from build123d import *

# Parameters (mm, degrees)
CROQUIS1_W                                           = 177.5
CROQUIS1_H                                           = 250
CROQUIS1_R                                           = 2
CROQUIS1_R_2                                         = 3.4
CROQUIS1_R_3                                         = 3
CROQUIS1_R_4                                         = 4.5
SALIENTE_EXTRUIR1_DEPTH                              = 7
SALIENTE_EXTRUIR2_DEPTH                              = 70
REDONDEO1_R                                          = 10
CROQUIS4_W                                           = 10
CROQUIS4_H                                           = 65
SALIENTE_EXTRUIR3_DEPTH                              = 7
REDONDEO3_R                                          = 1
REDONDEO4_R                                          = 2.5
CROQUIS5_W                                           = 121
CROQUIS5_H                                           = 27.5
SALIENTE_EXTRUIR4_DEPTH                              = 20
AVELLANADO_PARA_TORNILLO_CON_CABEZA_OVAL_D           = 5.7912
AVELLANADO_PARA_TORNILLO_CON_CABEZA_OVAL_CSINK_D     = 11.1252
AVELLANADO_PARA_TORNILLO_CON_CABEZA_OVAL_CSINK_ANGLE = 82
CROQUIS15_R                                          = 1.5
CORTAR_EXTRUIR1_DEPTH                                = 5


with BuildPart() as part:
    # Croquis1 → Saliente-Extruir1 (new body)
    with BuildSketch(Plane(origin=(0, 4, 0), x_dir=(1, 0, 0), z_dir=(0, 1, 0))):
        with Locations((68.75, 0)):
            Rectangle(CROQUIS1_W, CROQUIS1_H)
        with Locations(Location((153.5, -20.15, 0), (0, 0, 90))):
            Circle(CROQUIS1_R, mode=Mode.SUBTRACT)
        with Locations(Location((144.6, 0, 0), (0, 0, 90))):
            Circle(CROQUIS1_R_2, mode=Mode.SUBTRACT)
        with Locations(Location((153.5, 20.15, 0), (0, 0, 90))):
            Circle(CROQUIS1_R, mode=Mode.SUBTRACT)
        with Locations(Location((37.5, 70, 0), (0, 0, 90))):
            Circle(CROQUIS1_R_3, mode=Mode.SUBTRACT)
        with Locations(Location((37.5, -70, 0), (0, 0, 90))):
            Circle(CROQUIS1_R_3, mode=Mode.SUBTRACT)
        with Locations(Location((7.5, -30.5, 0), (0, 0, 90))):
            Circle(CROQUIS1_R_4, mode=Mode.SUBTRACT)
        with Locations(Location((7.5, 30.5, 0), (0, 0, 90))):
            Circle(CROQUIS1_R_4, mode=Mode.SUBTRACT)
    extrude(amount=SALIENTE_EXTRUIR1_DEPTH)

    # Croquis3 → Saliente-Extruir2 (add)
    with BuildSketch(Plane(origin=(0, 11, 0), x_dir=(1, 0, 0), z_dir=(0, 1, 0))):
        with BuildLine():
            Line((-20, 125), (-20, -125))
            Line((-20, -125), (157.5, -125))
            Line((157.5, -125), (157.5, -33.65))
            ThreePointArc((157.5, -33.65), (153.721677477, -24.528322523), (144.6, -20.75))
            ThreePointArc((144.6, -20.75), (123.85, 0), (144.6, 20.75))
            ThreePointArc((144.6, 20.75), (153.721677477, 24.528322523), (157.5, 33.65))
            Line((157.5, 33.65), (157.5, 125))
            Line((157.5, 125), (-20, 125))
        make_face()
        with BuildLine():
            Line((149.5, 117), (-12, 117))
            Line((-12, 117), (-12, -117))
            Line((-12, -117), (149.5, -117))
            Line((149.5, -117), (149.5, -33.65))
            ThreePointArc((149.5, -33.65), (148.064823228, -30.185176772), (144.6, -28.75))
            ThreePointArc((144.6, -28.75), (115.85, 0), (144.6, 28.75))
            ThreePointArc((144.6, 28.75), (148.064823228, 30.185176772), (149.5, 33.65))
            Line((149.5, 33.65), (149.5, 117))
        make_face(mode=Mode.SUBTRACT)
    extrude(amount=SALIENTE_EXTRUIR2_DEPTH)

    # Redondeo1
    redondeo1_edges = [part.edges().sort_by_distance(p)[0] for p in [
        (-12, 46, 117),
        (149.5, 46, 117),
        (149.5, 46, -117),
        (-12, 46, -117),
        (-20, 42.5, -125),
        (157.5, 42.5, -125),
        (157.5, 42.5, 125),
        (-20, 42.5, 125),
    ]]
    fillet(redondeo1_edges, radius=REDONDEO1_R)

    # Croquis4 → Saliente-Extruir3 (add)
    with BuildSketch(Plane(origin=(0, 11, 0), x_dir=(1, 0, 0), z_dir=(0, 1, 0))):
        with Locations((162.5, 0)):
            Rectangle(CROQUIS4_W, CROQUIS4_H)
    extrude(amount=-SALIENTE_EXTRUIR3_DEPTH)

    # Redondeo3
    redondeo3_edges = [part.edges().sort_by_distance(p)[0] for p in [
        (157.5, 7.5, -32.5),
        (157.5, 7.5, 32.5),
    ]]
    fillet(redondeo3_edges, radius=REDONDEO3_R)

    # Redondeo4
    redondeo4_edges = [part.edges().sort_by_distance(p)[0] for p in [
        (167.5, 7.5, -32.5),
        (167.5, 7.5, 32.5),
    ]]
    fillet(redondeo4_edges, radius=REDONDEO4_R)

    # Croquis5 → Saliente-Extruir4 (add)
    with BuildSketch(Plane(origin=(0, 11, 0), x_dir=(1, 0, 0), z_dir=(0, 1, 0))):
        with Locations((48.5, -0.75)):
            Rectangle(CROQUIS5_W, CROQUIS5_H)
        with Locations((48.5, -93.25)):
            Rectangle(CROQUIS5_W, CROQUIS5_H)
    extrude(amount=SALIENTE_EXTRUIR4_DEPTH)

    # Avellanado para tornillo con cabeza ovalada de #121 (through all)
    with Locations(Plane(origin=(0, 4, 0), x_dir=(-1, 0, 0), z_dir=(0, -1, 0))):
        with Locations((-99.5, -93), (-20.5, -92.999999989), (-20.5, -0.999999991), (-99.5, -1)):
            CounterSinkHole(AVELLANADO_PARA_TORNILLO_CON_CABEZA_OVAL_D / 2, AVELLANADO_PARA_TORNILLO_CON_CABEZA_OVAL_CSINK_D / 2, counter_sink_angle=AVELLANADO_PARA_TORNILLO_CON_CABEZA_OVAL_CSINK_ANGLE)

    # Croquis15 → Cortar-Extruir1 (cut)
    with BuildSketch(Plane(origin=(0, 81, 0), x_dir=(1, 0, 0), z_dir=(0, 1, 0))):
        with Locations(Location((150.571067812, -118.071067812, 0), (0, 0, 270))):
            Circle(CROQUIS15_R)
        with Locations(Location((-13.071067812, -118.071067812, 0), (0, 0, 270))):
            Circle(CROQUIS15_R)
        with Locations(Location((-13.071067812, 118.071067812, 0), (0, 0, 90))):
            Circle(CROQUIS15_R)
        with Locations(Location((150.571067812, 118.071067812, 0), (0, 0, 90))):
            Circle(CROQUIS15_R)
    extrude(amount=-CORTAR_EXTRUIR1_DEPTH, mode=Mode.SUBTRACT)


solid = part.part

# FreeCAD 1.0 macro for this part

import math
import FreeCAD as App
import Part
import Sketcher
Q = App.Units.Quantity


def edges_at(feature, points):
    """Names of the edges that pass closest to the given points."""
    edges = feature.Shape.Edges
    near = lambda p: min(range(len(edges)), key=lambda i: edges[i].distToShape(Part.Vertex(*p))[0])
    return sorted({f"Edge{near(p) + 1}" for p in points})


def add_polygon(sketch, points):
    """Adds a closed chain of lines whose ends are joined by coincident constraints."""
    first, n = sketch.GeometryCount, len(points)
    for a, b in zip(points, points[1:] + points[:1]):
        sketch.addGeometry(Part.LineSegment(App.Vector(*a, 0), App.Vector(*b, 0)), False)
    for i in range(n):
        sketch.addConstraint(Sketcher.Constraint("Coincident", first + i, 2, first + (i + 1) % n, 1))

doc = App.newDocument("Part")
params = doc.addObject("Spreadsheet::Sheet", "Params")
for row, (alias, value) in enumerate([
    ("sketch1_diameter", "6 mm"),
    ("sketch1_diameter2", "9 mm"),
    ("sketch1_diameter3", "4 mm"),
    ("sketch1_diameter4", "6.8 mm"),
    ("sketch1_height", "250 mm"),
    ("pad1_length", "7 mm"),
    ("sketch2_radius", "12.9 mm"),
    ("sketch2_radius2", "4.9 mm"),
    ("sketch2_height", "250 mm"),
    ("sketch2_height2", "234 mm"),
    ("sketch2_radius3", "20.75 mm"),
    ("pad2_length", "70 mm"),
    ("fillet_radius", "10 mm"),
    ("sketch3_width", "10 mm"),
    ("sketch3_height", "65 mm"),
    ("pad3_length", "7 mm"),
    ("fillet2_radius", "1 mm"),
    ("fillet3_radius", "2.5 mm"),
    ("sketch4_width", "121 mm"),
    ("sketch4_height", "27.5 mm"),
    ("pad4_length", "20 mm"),
    ("hole_diameter", "5.7912 mm"),
    ("hole_csink_diameter", "11.1252 mm"),
    ("sketch6_diameter", "3 mm"),
    ("pocket1_length", "5 mm"),
], start=1):
    params.set(f"A{row}", alias)
    params.set(f"B{row}", "=" + value)
    params.setAlias(f"B{row}", alias)

body = doc.addObject("PartDesign::Body", "Body")

# Sketch on XZ plane
sketch1 = body.newObject("Sketcher::SketchObject", "Sketch")
sketch1.AttachmentSupport = (doc.getObject("XZ_Plane"), [""])
sketch1.MapMode = "FlatFace"
sketch1.AttachmentOffset = App.Placement(App.Vector(0, 0, -4), App.Rotation())
add_polygon(sketch1, [(-20, -125), (-20, 125), (157.5, 125), (157.5, -125)])  # lines 0-3
sketch1.addGeometry(Part.Circle(App.Vector(37.5, 70, 0), App.Vector(0, 0, 1), 3), False)  # 4
sketch1.addGeometry(Part.Circle(App.Vector(7.5, 30.5, 0), App.Vector(0, 0, 1), 4.5), False)  # 5
sketch1.addGeometry(Part.Circle(App.Vector(153.5, 20.15, 0), App.Vector(0, 0, 1), 2), False)  # 6
sketch1.addGeometry(Part.Circle(App.Vector(7.5, -30.5, 0), App.Vector(0, 0, 1), 4.5), False)  # 7
sketch1.addGeometry(Part.Circle(App.Vector(37.5, -70, 0), App.Vector(0, 0, 1), 3), False)  # 8
sketch1.addGeometry(Part.Circle(App.Vector(144.6, 0, 0), App.Vector(0, 0, 1), 3.4), False)  # 9
sketch1.addGeometry(Part.Circle(App.Vector(153.5, -20.15, 0), App.Vector(0, 0, 1), 2), False)  # 10
sketch1.addConstraint([
    Sketcher.Constraint("Vertical", 0),
    Sketcher.Constraint("Horizontal", 1),
    Sketcher.Constraint("Vertical", 2),
    Sketcher.Constraint("Horizontal", 3),
    Sketcher.Constraint("Equal", 5, 7),
    Sketcher.Constraint("Equal", 4, 8),
    Sketcher.Constraint("Equal", 6, 10),
    Sketcher.Constraint("Symmetric", 5, 3, 7, 3, -1),
    Sketcher.Constraint("Symmetric", 4, 3, 8, 3, -1),
    Sketcher.Constraint("Symmetric", 6, 3, 10, 3, -1),
    Sketcher.Constraint("PointOnObject", 9, 3, -1),
    Sketcher.Constraint("Diameter", 4, Q("6 mm")),
    Sketcher.Constraint("Diameter", 5, Q("9 mm")),
    Sketcher.Constraint("Diameter", 6, Q("4 mm")),
    Sketcher.Constraint("Diameter", 9, Q("6.8 mm")),
    Sketcher.Constraint("DistanceY", 0, 1, 0, 2, Q("250 mm")),
    Sketcher.Constraint("DistanceX", 1, 1, 1, 2, Q("177.5 mm")),
    Sketcher.Constraint("DistanceY", -1, 1, 4, 3, Q("70 mm")),
    Sketcher.Constraint("DistanceX", 0, 2, -1, 1, Q("20 mm")),
    Sketcher.Constraint("DistanceY", -1, 1, 0, 2, Q("125 mm")),
    Sketcher.Constraint("DistanceX", 5, 3, 4, 3, Q("30 mm")),
    Sketcher.Constraint("DistanceX", 4, 3, 6, 3, Q("116 mm")),
    Sketcher.Constraint("DistanceY", 7, 3, 5, 3, Q("61 mm")),
    Sketcher.Constraint("DistanceX", 6, 3, 1, 2, Q("4 mm")),
    Sketcher.Constraint("DistanceX", -1, 1, 9, 3, Q("144.6 mm")),
    Sketcher.Constraint("DistanceY", 10, 3, 6, 3, Q("40.3 mm")),
])
sketch1.setExpression("Constraints[15]", "Params.sketch1_diameter")
sketch1.setExpression("Constraints[16]", "Params.sketch1_diameter2")
sketch1.setExpression("Constraints[17]", "Params.sketch1_diameter3")
sketch1.setExpression("Constraints[18]", "Params.sketch1_diameter4")
sketch1.setExpression("Constraints[19]", "Params.sketch1_height")
pad1 = body.newObject("PartDesign::Pad", "Pad")
pad1.Profile = sketch1
pad1.setExpression("Length", "Params.pad1_length")
pad1.Reversed = True

# Sketch on XZ plane
sketch2 = body.newObject("Sketcher::SketchObject", "Sketch001")
sketch2.AttachmentSupport = (doc.getObject("XZ_Plane"), [""])
sketch2.MapMode = "FlatFace"
sketch2.AttachmentOffset = App.Placement(App.Vector(0, 0, -11), App.Rotation())
sketch2.addGeometry([
    Part.LineSegment(App.Vector(-20, -125, 0), App.Vector(-20, 125, 0)),  # 0
    Part.LineSegment(App.Vector(-20, 125, 0), App.Vector(157.5, 125, 0)),  # 1
    Part.LineSegment(App.Vector(157.5, 125, 0), App.Vector(157.5, 33.65, 0)),  # 2
    Part.ArcOfCircle(Part.Circle(App.Vector(144.6, 33.65, 0), App.Vector(0, 0, 1), 12.9), math.radians(-90), math.radians(0)),  # 3
    Part.ArcOfCircle(Part.Circle(App.Vector(144.6, 0, 0), App.Vector(0, 0, 1), 20.75), math.radians(90), math.radians(270)),  # 4
    Part.ArcOfCircle(Part.Circle(App.Vector(144.6, -33.65, 0), App.Vector(0, 0, 1), 12.9), math.radians(0), math.radians(90)),  # 5
    Part.LineSegment(App.Vector(157.5, -33.65, 0), App.Vector(157.5, -125, 0)),  # 6
    Part.LineSegment(App.Vector(157.5, -125, 0), App.Vector(-20, -125, 0)),  # 7
    Part.LineSegment(App.Vector(-12, -117, 0), App.Vector(149.5, -117, 0)),  # 8
    Part.LineSegment(App.Vector(149.5, -117, 0), App.Vector(149.5, -33.65, 0)),  # 9
    Part.ArcOfCircle(Part.Circle(App.Vector(144.6, -33.65, 0), App.Vector(0, 0, 1), 4.9), math.radians(0), math.radians(90)),  # 10
    Part.ArcOfCircle(Part.Circle(App.Vector(144.6, 0, 0), App.Vector(0, 0, 1), 28.75), math.radians(90), math.radians(270)),  # 11
    Part.ArcOfCircle(Part.Circle(App.Vector(144.6, 33.65, 0), App.Vector(0, 0, 1), 4.9), math.radians(-90), math.radians(0)),  # 12
    Part.LineSegment(App.Vector(149.5, 33.65, 0), App.Vector(149.5, 117, 0)),  # 13
    Part.LineSegment(App.Vector(149.5, 117, 0), App.Vector(-12, 117, 0)),  # 14
    Part.LineSegment(App.Vector(-12, 117, 0), App.Vector(-12, -117, 0)),  # 15
], False)
sketch2.addConstraint([
    Sketcher.Constraint("Coincident", 0, 2, 1, 1),
    Sketcher.Constraint("Coincident", 1, 2, 2, 1),
    Sketcher.Constraint("Tangent", 2, 2, 3, 2),
    Sketcher.Constraint("Tangent", 3, 1, 4, 1),
    Sketcher.Constraint("Tangent", 4, 2, 5, 2),
    Sketcher.Constraint("Tangent", 5, 1, 6, 1),
    Sketcher.Constraint("Coincident", 6, 2, 7, 1),
    Sketcher.Constraint("Coincident", 7, 2, 0, 1),
    Sketcher.Constraint("Coincident", 8, 2, 9, 1),
    Sketcher.Constraint("Tangent", 9, 2, 10, 1),
    Sketcher.Constraint("Tangent", 10, 2, 11, 2),
    Sketcher.Constraint("Tangent", 11, 1, 12, 1),
    Sketcher.Constraint("Tangent", 12, 2, 13, 1),
    Sketcher.Constraint("Coincident", 13, 2, 14, 1),
    Sketcher.Constraint("Coincident", 14, 2, 15, 1),
    Sketcher.Constraint("Coincident", 15, 2, 8, 1),
    Sketcher.Constraint("Vertical", 0),
    Sketcher.Constraint("Horizontal", 1),
    Sketcher.Constraint("Vertical", 2),
    Sketcher.Constraint("Vertical", 6),
    Sketcher.Constraint("Horizontal", 7),
    Sketcher.Constraint("Horizontal", 8),
    Sketcher.Constraint("Vertical", 9),
    Sketcher.Constraint("Vertical", 13),
    Sketcher.Constraint("Horizontal", 14),
    Sketcher.Constraint("Vertical", 15),
    Sketcher.Constraint("Coincident", 10, 3, 5, 3),
    Sketcher.Constraint("Coincident", 11, 3, 4, 3),
    Sketcher.Constraint("Coincident", 12, 3, 3, 3),
    Sketcher.Constraint("Equal", 3, 5),
    Sketcher.Constraint("Symmetric", 3, 3, 5, 3, -1),
    Sketcher.Constraint("Vertical", 3, 3, 4, 3),
    Sketcher.Constraint("Equal", 2, 6),
    Sketcher.Constraint("Equal", 9, 13),
    Sketcher.Constraint("Radius", 3, Q("12.9 mm")),
    Sketcher.Constraint("Radius", 10, Q("4.9 mm")),
    Sketcher.Constraint("DistanceY", 0, 1, 0, 2, Q("250 mm")),
    Sketcher.Constraint("DistanceY", 15, 2, 15, 1, Q("234 mm")),
    Sketcher.Constraint("Radius", 4, Q("20.75 mm")),
    Sketcher.Constraint("DistanceX", 1, 1, 1, 2, Q("177.5 mm")),
    Sketcher.Constraint("DistanceX", 8, 1, 8, 2, Q("161.5 mm")),
    Sketcher.Constraint("DistanceX", 0, 2, -1, 1, Q("20 mm")),
])
sketch2.setExpression("Constraints[34]", "Params.sketch2_radius")
sketch2.setExpression("Constraints[35]", "Params.sketch2_radius2")
sketch2.setExpression("Constraints[36]", "Params.sketch2_height")
sketch2.setExpression("Constraints[37]", "Params.sketch2_height2")
sketch2.setExpression("Constraints[38]", "Params.sketch2_radius3")
pad2 = body.newObject("PartDesign::Pad", "Pad001")
pad2.Profile = sketch2
pad2.setExpression("Length", "Params.pad2_length")
pad2.Reversed = True
doc.recompute()

fillet = body.newObject("PartDesign::Fillet", "Fillet")
fillet.Base = (pad2, edges_at(pad2, [
    (-12, 46, 117),
    (149.5, 46, 117),
    (149.5, 46, -117),
    (-12, 46, -117),
    (-20, 42.5, -125),
    (157.5, 42.5, -125),
    (157.5, 42.5, 125),
    (-20, 42.5, 125),
]))
fillet.setExpression("Radius", "Params.fillet_radius")

# Sketch on XZ plane
sketch3 = body.newObject("Sketcher::SketchObject", "Sketch002")
sketch3.AttachmentSupport = (doc.getObject("XZ_Plane"), [""])
sketch3.MapMode = "FlatFace"
sketch3.AttachmentOffset = App.Placement(App.Vector(0, 0, -11), App.Rotation())
add_polygon(sketch3, [(157.5, -32.5), (157.5, 32.5), (167.5, 32.5), (167.5, -32.5)])  # lines 0-3
sketch3.addConstraint([
    Sketcher.Constraint("Vertical", 0),
    Sketcher.Constraint("Horizontal", 1),
    Sketcher.Constraint("Vertical", 2),
    Sketcher.Constraint("Horizontal", 3),
    Sketcher.Constraint("DistanceX", 1, 1, 1, 2, Q("10 mm")),
    Sketcher.Constraint("DistanceY", 0, 1, 0, 2, Q("65 mm")),
    Sketcher.Constraint("DistanceX", -1, 1, 0, 2, Q("157.5 mm")),
    Sketcher.Constraint("DistanceY", -1, 1, 0, 2, Q("32.5 mm")),
])
sketch3.setExpression("Constraints[8]", "Params.sketch3_width")
sketch3.setExpression("Constraints[9]", "Params.sketch3_height")
pad3 = body.newObject("PartDesign::Pad", "Pad002")
pad3.Profile = sketch3
pad3.setExpression("Length", "Params.pad3_length")
doc.recompute()

fillet2 = body.newObject("PartDesign::Fillet", "Fillet001")
fillet2.Base = (pad3, edges_at(pad3, [(157.5, 7.5, -32.5), (157.5, 7.5, 32.5)]))
fillet2.setExpression("Radius", "Params.fillet2_radius")
doc.recompute()

fillet3 = body.newObject("PartDesign::Fillet", "Fillet002")
fillet3.Base = (fillet2, edges_at(fillet2, [(167.5, 7.5, -32.5), (167.5, 7.5, 32.5)]))
fillet3.setExpression("Radius", "Params.fillet3_radius")

# Sketch on XZ plane
sketch4 = body.newObject("Sketcher::SketchObject", "Sketch003")
sketch4.AttachmentSupport = (doc.getObject("XZ_Plane"), [""])
sketch4.MapMode = "FlatFace"
sketch4.AttachmentOffset = App.Placement(App.Vector(0, 0, -11), App.Rotation())
add_polygon(sketch4, [(-12, -13), (-12, 14.5), (109, 14.5), (109, -13)])  # lines 0-3
add_polygon(sketch4, [(-12, 79.5), (-12, 107), (109, 107), (109, 79.5)])  # lines 4-7
sketch4.addConstraint([
    Sketcher.Constraint("Vertical", 0),
    Sketcher.Constraint("Horizontal", 1),
    Sketcher.Constraint("Vertical", 2),
    Sketcher.Constraint("Horizontal", 3),
    Sketcher.Constraint("Vertical", 4),
    Sketcher.Constraint("Horizontal", 5),
    Sketcher.Constraint("Vertical", 6),
    Sketcher.Constraint("Horizontal", 7),
    Sketcher.Constraint("Vertical", 3, 2, 4, 2),
    Sketcher.Constraint("Vertical", 2, 2, 5, 2),
    Sketcher.Constraint("Equal", 2, 4),
    Sketcher.Constraint("DistanceX", 1, 1, 1, 2, Q("121 mm")),
    Sketcher.Constraint("DistanceY", 0, 1, 0, 2, Q("27.5 mm")),
    Sketcher.Constraint("DistanceX", 0, 2, -1, 1, Q("12 mm")),
    Sketcher.Constraint("DistanceY", 2, 2, -1, 1, Q("13 mm")),
    Sketcher.Constraint("DistanceY", -1, 1, 4, 2, Q("107 mm")),
])
sketch4.setExpression("Constraints[19]", "Params.sketch4_width")
sketch4.setExpression("Constraints[20]", "Params.sketch4_height")
pad4 = body.newObject("PartDesign::Pad", "Pad003")
pad4.Profile = sketch4
pad4.setExpression("Length", "Params.pad4_length")
pad4.Reversed = True

# Sketch on XZ plane
sketch5 = body.newObject("Sketcher::SketchObject", "Sketch004")
sketch5.AttachmentSupport = (doc.getObject("XZ_Plane"), [""])
sketch5.MapMode = "FlatFace"
sketch5.AttachmentOffset = App.Placement(App.Vector(0, 0, -4), App.Rotation())
sketch5.addGeometry([
    Part.Circle(App.Vector(99.5, 93, 0), App.Vector(0, 0, 1), 2.8956),
    Part.Circle(App.Vector(20.5, 93, 0), App.Vector(0, 0, 1), 2.8956),
    Part.Circle(App.Vector(20.5, 1, 0), App.Vector(0, 0, 1), 2.8956),
    Part.Circle(App.Vector(99.5, 1, 0), App.Vector(0, 0, 1), 2.8956),
], False)
sketch5.addConstraint([
    Sketcher.Constraint("Equal", 0, 1),
    Sketcher.Constraint("Equal", 1, 2),
    Sketcher.Constraint("Equal", 2, 3),
    Sketcher.Constraint("Horizontal", 0, 3, 1, 3),
    Sketcher.Constraint("Horizontal", 2, 3, 3, 3),
    Sketcher.Constraint("Vertical", 1, 3, 2, 3),
    Sketcher.Constraint("Vertical", 0, 3, 3, 3),
    Sketcher.Constraint("DistanceY", -1, 1, 0, 3, Q("93 mm")),
    Sketcher.Constraint("DistanceY", -1, 1, 2, 3, Q("1 mm")),
    Sketcher.Constraint("DistanceX", 1, 3, 0, 3, Q("79 mm")),
    Sketcher.Constraint("Diameter", 0, Q("5.7912 mm")),
    Sketcher.Constraint("DistanceX", -1, 1, 0, 3, Q("99.5 mm")),
])
doc.recompute()
hole = body.newObject("PartDesign::Hole", "Hole")
hole.Profile = sketch5
hole.ThreadType = "None"
hole.setExpression("Diameter", "Params.hole_diameter")
hole.DepthType = "ThroughAll"
hole.HoleCutType = "Countersink"
hole.setExpression("HoleCutDiameter", "Params.hole_csink_diameter")
hole.HoleCutCountersinkAngle = 82

# Sketch on XZ plane
sketch6 = body.newObject("Sketcher::SketchObject", "Sketch005")
sketch6.AttachmentSupport = (doc.getObject("XZ_Plane"), [""])
sketch6.MapMode = "FlatFace"
sketch6.AttachmentOffset = App.Placement(App.Vector(0, 0, -81), App.Rotation())
sketch6.addGeometry([
    Part.Circle(App.Vector(150.571068, 118.071068, 0), App.Vector(0, 0, 1), 1.5),
    Part.Circle(App.Vector(-13.071068, 118.071068, 0), App.Vector(0, 0, 1), 1.5),
    Part.Circle(App.Vector(-13.071068, -118.071068, 0), App.Vector(0, 0, 1), 1.5),
    Part.Circle(App.Vector(150.571068, -118.071068, 0), App.Vector(0, 0, 1), 1.5),
], False)
sketch6.addConstraint([
    Sketcher.Constraint("Equal", 0, 1),
    Sketcher.Constraint("Equal", 1, 2),
    Sketcher.Constraint("Equal", 2, 3),
    Sketcher.Constraint("Symmetric", 1, 3, 2, 3, -1),
    Sketcher.Constraint("Symmetric", 0, 3, 3, 3, -1),
    Sketcher.Constraint("Horizontal", 0, 3, 1, 3),
    Sketcher.Constraint("Diameter", 0, Q("3 mm")),
    Sketcher.Constraint("DistanceX", -1, 1, 0, 3, Q("150.571068 mm")),
    Sketcher.Constraint("DistanceY", -1, 1, 0, 3, Q("118.071068 mm")),
    Sketcher.Constraint("DistanceX", 1, 3, -1, 1, Q("13.071068 mm")),
])
sketch6.setExpression("Constraints[6]", "Params.sketch6_diameter")
pocket1 = body.newObject("PartDesign::Pocket", "Pocket")
pocket1.Profile = sketch6
pocket1.setExpression("Length", "Params.pocket1_length")
pocket1.Reversed = True

doc.recompute()
